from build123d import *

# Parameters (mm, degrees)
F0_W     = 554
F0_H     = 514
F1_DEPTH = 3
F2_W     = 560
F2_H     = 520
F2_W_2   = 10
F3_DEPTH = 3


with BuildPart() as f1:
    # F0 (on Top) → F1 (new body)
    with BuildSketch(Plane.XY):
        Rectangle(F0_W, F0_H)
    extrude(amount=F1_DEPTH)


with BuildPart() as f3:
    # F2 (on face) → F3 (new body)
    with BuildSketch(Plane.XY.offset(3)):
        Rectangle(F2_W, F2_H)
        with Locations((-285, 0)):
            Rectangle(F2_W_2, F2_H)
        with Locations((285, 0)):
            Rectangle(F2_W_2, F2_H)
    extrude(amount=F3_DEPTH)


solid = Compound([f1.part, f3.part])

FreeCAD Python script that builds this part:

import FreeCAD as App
import Part
import Sketcher

V = App.Vector
Q = App.Units.Quantity


def add_polygon(sketch, points):
    """Adds a closed chain of lines whose ends are joined by coincident constraints."""
    first, n = sketch.GeometryCount, len(points)
    for a, b in zip(points, points[1:] + points[:1]):
        sketch.addGeometry(Part.LineSegment(App.Vector(*a, 0), App.Vector(*b, 0)), False)
    for i in range(n):
        sketch.addConstraint(Sketcher.Constraint("Coincident", first + i, 2, first + (i + 1) % n, 1))

doc = App.newDocument("Part")
body = doc.addObject("PartDesign::Body", "Body")

sketch1 = doc.addObject("Sketcher::SketchObject", "Sketch")
body.addObject(sketch1)
sketch1.AttachmentSupport = (doc.XY_Plane, [""])
sketch1.MapMode = "FlatFace"
add_polygon(sketch1, [(-277, 257), (-277, -257), (277, -257), (277, 257)])
sketch1.addConstraint([
    Sketcher.Constraint("Vertical", 0),
    Sketcher.Constraint("Horizontal", 1),
    Sketcher.Constraint("Vertical", 2),
    Sketcher.Constraint("Horizontal", 3),
    Sketcher.Constraint("Symmetric", 0, 2, 2, 2, -1, 1),
    Sketcher.Constraint("DistanceX", 1, 1, 1, 2, Q("554 mm")),
    Sketcher.Constraint("DistanceY", 0, 2, 0, 1, Q("514 mm")),
])
pad1 = doc.addObject("PartDesign::Pad", "Pad")
body.addObject(pad1)
pad1.Profile = sketch1
pad1.Length = 3
body2 = doc.addObject("PartDesign::Body", "Body001")

sketch2 = doc.addObject("Sketcher::SketchObject", "Sketch001")
body2.addObject(sketch2)
sketch2.AttachmentSupport = (doc.getObject("XY_Plane001"), [""])
sketch2.MapMode = "FlatFace"
sketch2.AttachmentOffset = App.Placement(V(0, 0, 3), App.Rotation())
add_polygon(sketch2, [(-290, 260), (-290, -260), (290, -260), (290, 260)])
sketch2.addConstraint([
    Sketcher.Constraint("Vertical", 0),
    Sketcher.Constraint("Horizontal", 1),
    Sketcher.Constraint("Vertical", 2),
    Sketcher.Constraint("Horizontal", 3),
    Sketcher.Constraint("Symmetric", 0, 2, 2, 2, -1, 1),
    Sketcher.Constraint("DistanceX", 1, 1, 1, 2, Q("580 mm")),
    Sketcher.Constraint("DistanceY", 0, 2, 0, 1, Q("520 mm")),
])
pad2 = doc.addObject("PartDesign::Pad", "Pad001")
body2.addObject(pad2)
pad2.Profile = sketch2
pad2.Length = 3

doc.recompute()
